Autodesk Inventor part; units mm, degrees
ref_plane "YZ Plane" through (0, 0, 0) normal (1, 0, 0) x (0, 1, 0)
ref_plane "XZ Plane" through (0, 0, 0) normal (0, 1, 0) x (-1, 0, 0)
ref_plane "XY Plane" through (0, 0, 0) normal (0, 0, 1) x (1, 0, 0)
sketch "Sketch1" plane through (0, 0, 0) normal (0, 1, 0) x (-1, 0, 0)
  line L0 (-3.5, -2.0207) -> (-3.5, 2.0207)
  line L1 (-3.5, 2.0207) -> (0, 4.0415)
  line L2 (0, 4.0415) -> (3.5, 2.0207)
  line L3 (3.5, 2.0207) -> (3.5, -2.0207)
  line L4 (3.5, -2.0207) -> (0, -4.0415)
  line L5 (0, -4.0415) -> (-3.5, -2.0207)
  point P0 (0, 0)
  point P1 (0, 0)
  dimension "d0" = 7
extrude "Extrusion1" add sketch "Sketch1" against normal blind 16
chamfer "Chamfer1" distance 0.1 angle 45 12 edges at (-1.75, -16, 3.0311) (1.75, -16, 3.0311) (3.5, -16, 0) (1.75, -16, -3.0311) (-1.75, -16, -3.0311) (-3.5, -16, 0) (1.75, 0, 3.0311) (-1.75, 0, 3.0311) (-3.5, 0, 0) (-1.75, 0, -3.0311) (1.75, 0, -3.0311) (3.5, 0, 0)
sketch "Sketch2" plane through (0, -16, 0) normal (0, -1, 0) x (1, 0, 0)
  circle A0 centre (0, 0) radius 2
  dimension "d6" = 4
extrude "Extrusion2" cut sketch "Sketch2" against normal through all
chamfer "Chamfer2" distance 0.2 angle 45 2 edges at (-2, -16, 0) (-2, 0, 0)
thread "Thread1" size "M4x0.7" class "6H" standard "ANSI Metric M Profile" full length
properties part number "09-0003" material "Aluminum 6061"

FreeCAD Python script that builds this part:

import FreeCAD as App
import Part
import Sketcher
from FreeCAD import Vector
Q = App.Units.Quantity


def edges_at(feature, points):
    """Names of the edges that pass closest to the given points."""
    edges = feature.Shape.Edges
    near = lambda p: min(range(len(edges)), key=lambda i: edges[i].distToShape(Part.Vertex(*p))[0])
    return sorted({f"Edge{near(p) + 1}" for p in points})


def add_polygon(sketch, points):
    """Adds a closed chain of lines whose ends are joined by coincident constraints."""
    first, n = sketch.GeometryCount, len(points)
    for a, b in zip(points, points[1:] + points[:1]):
        sketch.addGeometry(Part.LineSegment(App.Vector(*a, 0), App.Vector(*b, 0)), False)
    for i in range(n):
        sketch.addConstraint(Sketcher.Constraint("Coincident", first + i, 2, first + (i + 1) % n, 1))

doc = App.newDocument("Part")
body = doc.addObject("PartDesign::Body", "Body")

# Sketch on XZ plane
sketch1 = body.newObject("Sketcher::SketchObject", "Sketch")
sketch1.AttachmentSupport = (doc.getObject("XZ_Plane"), [""])
sketch1.MapMode = "FlatFace"
add_polygon(sketch1, [(3.5, 2), (3.5, -2), (0, -4), (-3.5, -2), (-3.5, 2), (0, 4)])  # lines 0-5
sketch1.addConstraint([
    Sketcher.Constraint("Vertical", 0),
    Sketcher.Constraint("Vertical", 3),
    Sketcher.Constraint("Symmetric", 0, 2, 3, 2, -1, 1),
    Sketcher.Constraint("Symmetric", 1, 2, 4, 2, -1, 1),
    Sketcher.Constraint("PointOnObject", 1, 2, -2),
    Sketcher.Constraint("Parallel", 2, 5),
    Sketcher.Constraint("Horizontal", 0, 2, 2, 2),
    Sketcher.Constraint("DistanceX", 2, 2, 0, 2, 7.0),
    Sketcher.Constraint("Angle", 1, Q("-149.999 deg")),
    Sketcher.Constraint("DistanceY", 0, 2, 0, 1, 4.0414),
])
pad1 = body.newObject("PartDesign::Pad", "Pad")
pad1.Profile = sketch1
pad1.Length = 16
doc.recompute()

chamfer = body.newObject("PartDesign::Chamfer", "Chamfer")
chamfer.Base = (pad1, edges_at(pad1, [
    (-1.75, -16, 3.031),
    (1.75, -16, 3.031),
    (3.5, -16, 0),
    (1.75, -16, -3.031),
    (-1.75, -16, -3.031),
    (-3.5, -16, 0),
    (1.75, 0, 3.031),
    (-1.75, 0, 3.031),
    (-3.5, 0, 0),
    (-1.75, 0, -3.031),
    (1.75, 0, -3.031),
    (3.5, 0, 0),
]))
chamfer.Size = 0.1

# Sketch on XZ plane
sketch2 = body.newObject("Sketcher::SketchObject", "Sketch001")
sketch2.AttachmentSupport = (doc.getObject("XZ_Plane"), [""])
sketch2.MapMode = "FlatFace"
sketch2.AttachmentOffset = App.Placement(Vector(0, 0, 16), App.Rotation())
sketch2.addGeometry(Part.Circle(Vector(0, 0, 0), Vector(0, 0, 1), 2), False)
sketch2.addConstraint([
    Sketcher.Constraint("Coincident", 0, 3, -1, 1),
    Sketcher.Constraint("Diameter", 0, 4.0),
])
pocket1 = body.newObject("PartDesign::Pocket", "Pocket")
pocket1.Profile = sketch2
pocket1.Type = "ThroughAll"
doc.recompute()

chamfer2 = body.newObject("PartDesign::Chamfer", "Chamfer001")
chamfer2.Base = (pocket1, edges_at(pocket1, [(-2, -16, 0), (-2, 0, 0)]))
chamfer2.Size = 0.2

doc.recompute()
